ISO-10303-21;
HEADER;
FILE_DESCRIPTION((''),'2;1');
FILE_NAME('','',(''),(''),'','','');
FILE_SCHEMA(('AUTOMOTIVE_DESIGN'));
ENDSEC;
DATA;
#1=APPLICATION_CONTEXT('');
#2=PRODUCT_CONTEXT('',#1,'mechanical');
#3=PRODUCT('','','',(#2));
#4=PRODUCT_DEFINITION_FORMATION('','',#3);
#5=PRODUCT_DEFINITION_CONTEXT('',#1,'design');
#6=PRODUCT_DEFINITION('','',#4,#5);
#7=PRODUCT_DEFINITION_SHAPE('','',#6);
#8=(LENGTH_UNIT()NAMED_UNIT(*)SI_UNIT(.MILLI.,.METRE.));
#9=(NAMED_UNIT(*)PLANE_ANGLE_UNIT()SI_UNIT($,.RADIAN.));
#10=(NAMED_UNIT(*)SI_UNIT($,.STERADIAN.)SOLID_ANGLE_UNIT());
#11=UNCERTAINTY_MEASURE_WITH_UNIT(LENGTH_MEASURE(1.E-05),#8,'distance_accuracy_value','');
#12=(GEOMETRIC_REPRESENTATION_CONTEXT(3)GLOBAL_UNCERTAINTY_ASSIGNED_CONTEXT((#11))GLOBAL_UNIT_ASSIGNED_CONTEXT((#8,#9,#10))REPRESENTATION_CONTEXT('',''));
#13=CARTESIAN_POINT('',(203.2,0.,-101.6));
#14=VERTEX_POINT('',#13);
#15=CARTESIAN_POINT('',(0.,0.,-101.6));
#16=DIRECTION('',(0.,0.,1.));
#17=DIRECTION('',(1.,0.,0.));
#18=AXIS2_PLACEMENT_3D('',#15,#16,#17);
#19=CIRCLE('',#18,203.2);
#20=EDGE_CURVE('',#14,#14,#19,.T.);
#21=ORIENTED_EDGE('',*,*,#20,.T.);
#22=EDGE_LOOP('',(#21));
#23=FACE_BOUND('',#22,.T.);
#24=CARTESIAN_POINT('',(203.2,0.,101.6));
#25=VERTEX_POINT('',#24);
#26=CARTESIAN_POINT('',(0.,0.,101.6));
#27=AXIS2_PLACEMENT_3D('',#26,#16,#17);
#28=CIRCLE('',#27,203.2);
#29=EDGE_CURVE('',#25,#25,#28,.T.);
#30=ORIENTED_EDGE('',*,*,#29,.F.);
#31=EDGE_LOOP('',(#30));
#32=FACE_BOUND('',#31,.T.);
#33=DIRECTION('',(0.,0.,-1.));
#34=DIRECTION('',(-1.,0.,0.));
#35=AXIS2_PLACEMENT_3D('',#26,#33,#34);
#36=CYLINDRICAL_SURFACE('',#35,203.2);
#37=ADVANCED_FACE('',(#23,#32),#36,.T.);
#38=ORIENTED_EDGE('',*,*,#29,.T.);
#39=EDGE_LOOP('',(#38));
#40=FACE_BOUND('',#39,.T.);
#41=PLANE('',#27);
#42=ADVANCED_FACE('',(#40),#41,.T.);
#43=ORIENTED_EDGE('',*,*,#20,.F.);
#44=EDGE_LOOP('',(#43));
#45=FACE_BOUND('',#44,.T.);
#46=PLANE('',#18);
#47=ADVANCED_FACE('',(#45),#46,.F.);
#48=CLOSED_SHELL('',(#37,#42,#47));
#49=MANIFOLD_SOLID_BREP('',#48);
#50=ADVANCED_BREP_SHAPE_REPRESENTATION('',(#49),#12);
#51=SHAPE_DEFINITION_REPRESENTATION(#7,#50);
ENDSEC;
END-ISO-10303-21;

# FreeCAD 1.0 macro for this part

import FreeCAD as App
import Part
import Sketcher
Q = App.Units.Quantity

doc = App.newDocument("Part")
body = doc.addObject("PartDesign::Body", "Body")

# Sketch on XY plane
sketch1 = body.newObject("Sketcher::SketchObject", "Sketch")
sketch1.AttachmentSupport = (doc.getObject("XY_Plane"), [""])
sketch1.MapMode = "FlatFace"
sketch1.addGeometry(Part.Circle(App.Vector(0, 0, 0), App.Vector(0, 0, 1), 203), False)
sketch1.addConstraint([
    Sketcher.Constraint("Coincident", 0, 3, -1, 1),
    Sketcher.Constraint("Diameter", 0, Q("16 in")),
])
pad1 = body.newObject("PartDesign::Pad", "Pad")
pad1.Profile = sketch1
pad1.Length = Q("8 in")
pad1.Midplane = True

doc.recompute()
